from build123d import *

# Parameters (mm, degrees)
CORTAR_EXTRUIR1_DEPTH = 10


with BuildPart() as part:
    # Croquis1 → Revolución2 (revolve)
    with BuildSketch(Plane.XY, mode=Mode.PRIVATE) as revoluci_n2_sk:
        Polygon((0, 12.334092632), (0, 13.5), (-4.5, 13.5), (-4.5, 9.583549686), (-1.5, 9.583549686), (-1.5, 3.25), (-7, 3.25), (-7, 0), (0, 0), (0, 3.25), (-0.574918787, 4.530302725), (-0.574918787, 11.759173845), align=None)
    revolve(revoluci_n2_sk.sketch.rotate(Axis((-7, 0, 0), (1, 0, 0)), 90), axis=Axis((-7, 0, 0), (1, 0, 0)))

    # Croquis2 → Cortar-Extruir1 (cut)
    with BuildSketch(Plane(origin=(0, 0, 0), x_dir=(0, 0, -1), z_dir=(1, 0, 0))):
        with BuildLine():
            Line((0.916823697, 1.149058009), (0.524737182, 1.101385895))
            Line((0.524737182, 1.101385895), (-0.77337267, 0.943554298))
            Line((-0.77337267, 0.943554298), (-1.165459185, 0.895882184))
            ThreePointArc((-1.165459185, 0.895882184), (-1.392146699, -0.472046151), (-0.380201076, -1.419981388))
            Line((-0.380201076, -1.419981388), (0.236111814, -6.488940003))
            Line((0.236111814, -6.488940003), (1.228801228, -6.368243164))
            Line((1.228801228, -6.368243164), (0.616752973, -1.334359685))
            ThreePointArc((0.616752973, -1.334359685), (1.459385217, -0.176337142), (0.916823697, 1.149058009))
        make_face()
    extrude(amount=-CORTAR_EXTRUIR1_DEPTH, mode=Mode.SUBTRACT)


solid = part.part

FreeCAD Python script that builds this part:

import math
import FreeCAD as App
import Part
import Sketcher

V = App.Vector
Q = App.Units.Quantity

doc = App.newDocument("Part")
body = doc.addObject("PartDesign::Body", "Body")

sketch1 = body.newObject("Sketcher::SketchObject", "Sketch")
sketch1.AttachmentSupport = (doc.getObject("XY_Plane"), [""])
sketch1.MapMode = "FlatFace"
sketch1.addGeometry([
    Part.LineSegment(V(0, 12.3, 0), V(0, 13.5, 0)),
    Part.LineSegment(V(0, 13.5, 0), V(-4.5, 13.5, 0)),
    Part.LineSegment(V(-4.5, 13.5, 0), V(-4.5, 9.6, 0)),
    Part.LineSegment(V(-4.5, 9.6, 0), V(-1.5, 9.6, 0)),
    Part.LineSegment(V(-1.5, 9.6, 0), V(-1.5, 3.2, 0)),
    Part.LineSegment(V(-1.5, 3.2, 0), V(-7, 3.2, 0)),
    Part.LineSegment(V(-7, 3.2, 0), V(-7, 0, 0)),
    Part.LineSegment(V(-7, 0, 0), V(0, 0, 0)),
    Part.LineSegment(V(0, 0, 0), V(0, 3.2, 0)),
    Part.LineSegment(V(0, 3.2, 0), V(-0.6, 4.5, 0)),
    Part.LineSegment(V(-0.6, 4.5, 0), V(-0.6, 11.8, 0)),
    Part.LineSegment(V(-0.6, 11.8, 0), V(0, 12.3, 0)),
], False)
sketch1.addConstraint([
    Sketcher.Constraint("Coincident", 0, 2, 1, 1),
    Sketcher.Constraint("Coincident", 1, 2, 2, 1),
    Sketcher.Constraint("Coincident", 2, 2, 3, 1),
    Sketcher.Constraint("Coincident", 3, 2, 4, 1),
    Sketcher.Constraint("Coincident", 4, 2, 5, 1),
    Sketcher.Constraint("Coincident", 5, 2, 6, 1),
    Sketcher.Constraint("Coincident", 6, 2, 7, 1),
    Sketcher.Constraint("Coincident", 7, 2, 8, 1),
    Sketcher.Constraint("Coincident", 8, 2, 9, 1),
    Sketcher.Constraint("Coincident", 9, 2, 10, 1),
    Sketcher.Constraint("Coincident", 10, 2, 11, 1),
    Sketcher.Constraint("Coincident", 11, 2, 0, 1),
    Sketcher.Constraint("Vertical", 0),
    Sketcher.Constraint("Horizontal", 1),
    Sketcher.Constraint("Vertical", 2),
    Sketcher.Constraint("Horizontal", 3),
    Sketcher.Constraint("Vertical", 4),
    Sketcher.Constraint("Horizontal", 5),
    Sketcher.Constraint("Vertical", 6),
    Sketcher.Constraint("Horizontal", 7),
    Sketcher.Constraint("Vertical", 8),
    Sketcher.Constraint("Vertical", 10),
    Sketcher.Constraint("Coincident", 7, 2, -1, 1),
    Sketcher.Constraint("PointOnObject", 0, 2, -2),
    Sketcher.Constraint("Horizontal", 5, 2, 8, 2),
    Sketcher.Constraint("DistanceX", 3, 1, 3, 2, Q("3 mm")),
    Sketcher.Constraint("DistanceX", 7, 1, 7, 2, Q("7 mm")),
    Sketcher.Constraint("Angle", 11, Q("45 deg")),
    Sketcher.Constraint("DistanceX", 1, 2, 1, 1, Q("4.5 mm")),
    Sketcher.Constraint("DistanceY", 6, 2, 6, 1, Q("3.25 mm")),
    Sketcher.Constraint("DistanceY", -1, 1, 0, 2, Q("13.5 mm")),
    Sketcher.Constraint("DistanceY", 2, 2, 2, 1, Q("3.91645 mm")),
    Sketcher.Constraint("DistanceY", 10, 1, 10, 2, Q("7.228871 mm")),
    Sketcher.Constraint("DistanceY", 0, 1, 0, 2, Q("1.165907 mm")),
    Sketcher.Constraint("DistanceX", 9, 2, -1, 1, Q("0.574919 mm")),
])
revolution = body.newObject("PartDesign::Revolution", "Revolution")
revolution.Profile = sketch1
revolution.ReferenceAxis = (sketch1, ["H_Axis"])
revolution.Angle = 360

sketch2 = body.newObject("Sketcher::SketchObject", "Sketch001")
sketch2.AttachmentSupport = (doc.getObject("YZ_Plane"), [""])
sketch2.MapMode = "FlatFace"
sketch2.addGeometry([
    Part.LineSegment(V(1.15, -0.92, 0), V(1.1, -0.52, 0)),
    Part.LineSegment(V(1.1, -0.52, 0), V(0.94, 0.77, 0)),
    Part.LineSegment(V(0.94, 0.77, 0), V(0.9, 1.17, 0)),
    Part.ArcOfCircle(Part.Circle(V(0, 0, 0), V(0, 0, 1), 1.47), math.radians(52), math.radians(165)),
    Part.LineSegment(V(-1.42, 0.38, 0), V(-6.49, -0.24, 0)),
    Part.LineSegment(V(-6.49, -0.24, 0), V(-6.37, -1.23, 0)),
    Part.LineSegment(V(-6.37, -1.23, 0), V(-1.33, -0.62, 0)),
    Part.ArcOfCircle(Part.Circle(V(0, 0, 0), V(0, 0, 1), 1.47), math.radians(-155), math.radians(-39)),
], False)
sketch2.addConstraint([
    Sketcher.Constraint("Coincident", 0, 2, 1, 1),
    Sketcher.Constraint("Coincident", 1, 2, 2, 1),
    Sketcher.Constraint("Coincident", 2, 2, 3, 1),
    Sketcher.Constraint("Coincident", 3, 2, 4, 1),
    Sketcher.Constraint("Coincident", 4, 2, 5, 1),
    Sketcher.Constraint("Coincident", 5, 2, 6, 1),
    Sketcher.Constraint("Coincident", 6, 2, 7, 1),
    Sketcher.Constraint("Coincident", 7, 2, 0, 1),
    Sketcher.Constraint("Coincident", 3, 3, -1, 1),
    Sketcher.Constraint("Coincident", 7, 3, -1, 1),
    Sketcher.Constraint("Equal", 3, 7),
    Sketcher.Constraint("Parallel", 0, 1),
    Sketcher.Constraint("Parallel", 1, 2),
    Sketcher.Constraint("Perpendicular", 2, 4),
    Sketcher.Constraint("Perpendicular", 4, 5),
    Sketcher.Constraint("Perpendicular", 5, 6),
    Sketcher.Constraint("Equal", 0, 2),
    Sketcher.Constraint("Radius", 3, Q("1.47 mm")),
    Sketcher.Constraint("Distance", 5, Q("1 mm")),
    Sketcher.Constraint("DistanceY", -1, 1, 3, 2, Q("0.380201 mm")),
    Sketcher.Constraint("DistanceY", 5, 2, -1, 1, Q("1.228801 mm")),
    Sketcher.Constraint("Distance", 1, Q("1.30767 mm")),
    Sketcher.Constraint("Distance", 4, Q("5.106289 mm")),
    Sketcher.Constraint("DistanceY", -1, 1, 2, 2, Q("1.165459 mm")),
])
pocket1 = body.newObject("PartDesign::Pocket", "Pocket")
pocket1.Profile = sketch2
pocket1.Length = 10

doc.recompute()
